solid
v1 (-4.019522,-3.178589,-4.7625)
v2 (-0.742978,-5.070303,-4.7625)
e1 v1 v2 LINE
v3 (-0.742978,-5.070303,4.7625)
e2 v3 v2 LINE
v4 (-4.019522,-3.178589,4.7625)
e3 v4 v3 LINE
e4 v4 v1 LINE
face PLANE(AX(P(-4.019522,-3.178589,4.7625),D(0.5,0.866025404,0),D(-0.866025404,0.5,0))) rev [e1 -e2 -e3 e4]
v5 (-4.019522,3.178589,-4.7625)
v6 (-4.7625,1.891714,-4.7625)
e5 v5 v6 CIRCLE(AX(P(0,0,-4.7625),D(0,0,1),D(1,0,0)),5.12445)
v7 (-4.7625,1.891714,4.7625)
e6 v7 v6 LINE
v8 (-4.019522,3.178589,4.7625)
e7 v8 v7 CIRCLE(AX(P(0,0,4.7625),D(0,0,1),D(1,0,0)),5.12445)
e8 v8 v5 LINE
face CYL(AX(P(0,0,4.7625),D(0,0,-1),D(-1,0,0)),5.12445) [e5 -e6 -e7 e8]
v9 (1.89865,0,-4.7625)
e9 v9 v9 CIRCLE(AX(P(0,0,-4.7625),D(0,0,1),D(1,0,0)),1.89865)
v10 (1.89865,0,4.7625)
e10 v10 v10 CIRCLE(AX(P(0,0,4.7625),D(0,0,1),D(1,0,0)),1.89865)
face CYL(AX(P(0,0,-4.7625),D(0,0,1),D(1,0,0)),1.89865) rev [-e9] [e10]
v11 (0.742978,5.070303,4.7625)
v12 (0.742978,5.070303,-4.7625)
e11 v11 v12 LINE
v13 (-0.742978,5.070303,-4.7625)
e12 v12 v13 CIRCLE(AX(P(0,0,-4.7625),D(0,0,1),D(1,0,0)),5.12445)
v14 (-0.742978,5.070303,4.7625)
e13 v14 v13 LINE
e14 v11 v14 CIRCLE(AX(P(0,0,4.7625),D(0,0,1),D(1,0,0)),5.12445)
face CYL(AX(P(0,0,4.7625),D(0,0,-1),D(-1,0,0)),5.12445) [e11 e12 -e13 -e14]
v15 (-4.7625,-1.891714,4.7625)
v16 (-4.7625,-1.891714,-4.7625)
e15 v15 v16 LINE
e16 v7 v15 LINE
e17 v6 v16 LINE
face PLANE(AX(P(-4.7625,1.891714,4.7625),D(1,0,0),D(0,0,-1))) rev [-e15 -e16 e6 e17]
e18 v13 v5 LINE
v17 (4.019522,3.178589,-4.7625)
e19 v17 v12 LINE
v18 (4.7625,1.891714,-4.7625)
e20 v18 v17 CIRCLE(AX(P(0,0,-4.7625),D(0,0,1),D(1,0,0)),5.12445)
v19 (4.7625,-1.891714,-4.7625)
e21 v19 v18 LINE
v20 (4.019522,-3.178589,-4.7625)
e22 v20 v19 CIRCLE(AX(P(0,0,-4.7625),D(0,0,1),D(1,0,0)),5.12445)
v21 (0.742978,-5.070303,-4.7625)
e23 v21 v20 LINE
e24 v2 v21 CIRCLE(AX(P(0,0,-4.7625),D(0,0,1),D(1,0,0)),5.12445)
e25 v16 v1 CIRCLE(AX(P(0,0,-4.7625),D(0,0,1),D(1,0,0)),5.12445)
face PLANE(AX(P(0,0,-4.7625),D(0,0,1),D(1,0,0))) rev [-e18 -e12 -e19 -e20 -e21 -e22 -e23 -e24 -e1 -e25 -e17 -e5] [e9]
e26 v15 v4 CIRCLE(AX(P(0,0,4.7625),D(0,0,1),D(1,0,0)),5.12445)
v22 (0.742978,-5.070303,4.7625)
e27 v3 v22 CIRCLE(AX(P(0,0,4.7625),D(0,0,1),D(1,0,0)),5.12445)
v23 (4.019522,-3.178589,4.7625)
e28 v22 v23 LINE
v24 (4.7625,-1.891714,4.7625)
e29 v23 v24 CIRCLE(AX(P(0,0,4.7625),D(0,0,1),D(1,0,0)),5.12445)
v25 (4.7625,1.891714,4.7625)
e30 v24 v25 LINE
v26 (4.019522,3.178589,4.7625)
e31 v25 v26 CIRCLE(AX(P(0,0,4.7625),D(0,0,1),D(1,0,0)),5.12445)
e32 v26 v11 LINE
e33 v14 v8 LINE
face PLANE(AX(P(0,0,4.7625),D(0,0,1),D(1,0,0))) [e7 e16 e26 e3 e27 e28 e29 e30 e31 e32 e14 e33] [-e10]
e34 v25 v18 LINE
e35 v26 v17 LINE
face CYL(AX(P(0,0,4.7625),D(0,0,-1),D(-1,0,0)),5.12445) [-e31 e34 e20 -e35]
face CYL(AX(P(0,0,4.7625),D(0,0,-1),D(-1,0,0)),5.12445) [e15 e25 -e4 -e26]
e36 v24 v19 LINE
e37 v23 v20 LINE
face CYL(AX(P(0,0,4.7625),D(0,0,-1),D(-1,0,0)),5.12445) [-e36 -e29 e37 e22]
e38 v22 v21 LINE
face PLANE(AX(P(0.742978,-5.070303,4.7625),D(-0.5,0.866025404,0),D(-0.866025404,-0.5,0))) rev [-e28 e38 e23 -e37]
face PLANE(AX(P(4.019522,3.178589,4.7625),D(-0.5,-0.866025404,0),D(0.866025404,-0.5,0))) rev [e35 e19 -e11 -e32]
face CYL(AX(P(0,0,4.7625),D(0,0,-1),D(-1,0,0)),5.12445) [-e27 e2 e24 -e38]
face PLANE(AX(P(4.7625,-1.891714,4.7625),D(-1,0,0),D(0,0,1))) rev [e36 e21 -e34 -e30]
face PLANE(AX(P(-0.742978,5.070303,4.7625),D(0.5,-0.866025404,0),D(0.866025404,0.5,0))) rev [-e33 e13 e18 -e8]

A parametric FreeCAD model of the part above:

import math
import FreeCAD as App
import Part
import Sketcher
from FreeCAD import Vector
Q = App.Units.Quantity

doc = App.newDocument("Part")
body = doc.addObject("PartDesign::Body", "Body")

# Sketch on XY plane
sketch1 = body.newObject("Sketcher::SketchObject", "Sketch")
sketch1.AttachmentSupport = (doc.getObject("XY_Plane"), [""])
sketch1.MapMode = "FlatFace"
sketch1.addGeometry(Part.Circle(Vector(0, 0, 0), Vector(0, 0, 1), 4.7625), False)
sketch1.addConstraint(Sketcher.Constraint("Coincident", 0, 3, -1, 1))
sketch1.addConstraint(Sketcher.Constraint("Diameter", 0, Q("0.375 in")))
pad1 = body.newObject("PartDesign::Pad", "Pad")
pad1.Profile = sketch1
pad1.Type = "TwoLengths"
pad1.Length = Q("0.1875 in")
pad1.Length2 = Q("0.1875 in")

# Sketch on XY plane
sketch2 = body.newObject("Sketcher::SketchObject", "Sketch001")
sketch2.AttachmentSupport = (doc.getObject("XY_Plane"), [""])
sketch2.MapMode = "FlatFace"
sketch2.addGeometry(Part.LineSegment(Vector(-0.742978, 5.070303, 0), Vector(-4.019522, 3.178589, 0)), False)
sketch2.addGeometry(Part.ArcOfCircle(Part.Circle(Vector(0, 0, 0), Vector(0, 0, 1), 5.12445), math.radians(141.663484), math.radians(158.336516)), False)
sketch2.addGeometry(Part.LineSegment(Vector(-4.7625, 1.891714, 0), Vector(-4.7625, -1.891714, 0)), False)
sketch2.addGeometry(Part.ArcOfCircle(Part.Circle(Vector(0, 0, 0), Vector(0, 0, 1), 5.12445), math.radians(-158.336516), math.radians(-141.663484)), False)
sketch2.addGeometry(Part.LineSegment(Vector(-4.019522, -3.178589, 0), Vector(-0.742978, -5.070303, 0)), False)
sketch2.addGeometry(Part.ArcOfCircle(Part.Circle(Vector(0, 0, 0), Vector(0, 0, 1), 5.12445), math.radians(-98.336516), math.radians(-81.663484)), False)
sketch2.addGeometry(Part.LineSegment(Vector(0.742978, -5.070303, 0), Vector(4.019522, -3.178589, 0)), False)
sketch2.addGeometry(Part.ArcOfCircle(Part.Circle(Vector(0, 0, 0), Vector(0, 0, 1), 5.12445), math.radians(-38.336516), math.radians(-21.663484)), False)
sketch2.addGeometry(Part.LineSegment(Vector(4.7625, -1.891714, 0), Vector(4.7625, 1.891714, 0)), False)
sketch2.addGeometry(Part.ArcOfCircle(Part.Circle(Vector(0, 0, 0), Vector(0, 0, 1), 5.12445), math.radians(21.663484), math.radians(38.336516)), False)
sketch2.addGeometry(Part.LineSegment(Vector(4.019522, 3.178589, 0), Vector(0.742978, 5.070303, 0)), False)
sketch2.addGeometry(Part.ArcOfCircle(Part.Circle(Vector(0, 0, 0), Vector(0, 0, 1), 5.12445), math.radians(81.663484), math.radians(98.336516)), False)
sketch2.addConstraint(Sketcher.Constraint("Coincident", 0, 2, 1, 1))
sketch2.addConstraint(Sketcher.Constraint("Coincident", 1, 2, 2, 1))
sketch2.addConstraint(Sketcher.Constraint("Coincident", 2, 2, 3, 1))
sketch2.addConstraint(Sketcher.Constraint("Coincident", 3, 2, 4, 1))
sketch2.addConstraint(Sketcher.Constraint("Coincident", 4, 2, 5, 1))
sketch2.addConstraint(Sketcher.Constraint("Coincident", 5, 2, 6, 1))
sketch2.addConstraint(Sketcher.Constraint("Coincident", 6, 2, 7, 1))
sketch2.addConstraint(Sketcher.Constraint("Coincident", 7, 2, 8, 1))
sketch2.addConstraint(Sketcher.Constraint("Coincident", 8, 2, 9, 1))
sketch2.addConstraint(Sketcher.Constraint("Coincident", 9, 2, 10, 1))
sketch2.addConstraint(Sketcher.Constraint("Coincident", 10, 2, 11, 1))
sketch2.addConstraint(Sketcher.Constraint("Coincident", 11, 2, 0, 1))
sketch2.addConstraint(Sketcher.Constraint("Vertical", 2))
sketch2.addConstraint(Sketcher.Constraint("Vertical", 8))
sketch2.addConstraint(Sketcher.Constraint("Coincident", 1, 3, -1, 1))
sketch2.addConstraint(Sketcher.Constraint("Coincident", 3, 3, -1, 1))
sketch2.addConstraint(Sketcher.Constraint("Coincident", 5, 3, -1, 1))
sketch2.addConstraint(Sketcher.Constraint("Coincident", 7, 3, -1, 1))
sketch2.addConstraint(Sketcher.Constraint("Coincident", 9, 3, -1, 1))
sketch2.addConstraint(Sketcher.Constraint("Coincident", 11, 3, -1, 1))
sketch2.addConstraint(Sketcher.Constraint("Equal", 1, 3))
sketch2.addConstraint(Sketcher.Constraint("Equal", 3, 5))
sketch2.addConstraint(Sketcher.Constraint("Equal", 5, 7))
sketch2.addConstraint(Sketcher.Constraint("Equal", 7, 9))
sketch2.addConstraint(Sketcher.Constraint("Equal", 9, 11))
sketch2.addConstraint(Sketcher.Constraint("Parallel", 0, 6))
sketch2.addConstraint(Sketcher.Constraint("Parallel", 4, 10))
sketch2.addConstraint(Sketcher.Constraint("Horizontal", 4, 2, 5, 2))
sketch2.addConstraint(Sketcher.Constraint("Horizontal", 3, 2, 6, 2))
sketch2.addConstraint(Sketcher.Constraint("Horizontal", 2, 2, 7, 2))
sketch2.addConstraint(Sketcher.Constraint("Horizontal", 0, 2, 9, 2))
sketch2.addConstraint(Sketcher.Constraint("Vertical", 0, 2, 3, 2))
sketch2.addConstraint(Sketcher.Constraint("Angle", 0, Q("-150 deg")))
sketch2.addConstraint(Sketcher.Constraint("DistanceX", 1, 2, -1, 1, Q("0.1875 in")))
sketch2.addConstraint(Sketcher.Constraint("Radius", 1, Q("5.12445 mm")))
sketch2.addConstraint(Sketcher.Constraint("DistanceX", 3, 2, 5, 2, Q("0.1875 in")))
pad2 = body.newObject("PartDesign::Pad", "Pad001")
pad2.Profile = sketch2
pad2.Length = Q("0.375 in")
pad2.Midplane = True

# Sketch on XY plane
sketch3 = body.newObject("Sketcher::SketchObject", "Sketch002")
sketch3.AttachmentSupport = (doc.getObject("XY_Plane"), [""])
sketch3.MapMode = "FlatFace"
sketch3.addGeometry(Part.Circle(Vector(0, 0, 0), Vector(0, 0, 1), 1.89865), False)
sketch3.addConstraint(Sketcher.Constraint("Coincident", 0, 3, -1, 1))
sketch3.addConstraint(Sketcher.Constraint("Diameter", 0, Q("0.1495 in")))
pocket1 = body.newObject("PartDesign::Pocket", "Pocket")
pocket1.Profile = sketch3
pocket1.Type = "ThroughAll"
pocket1.Midplane = True

doc.recompute()
